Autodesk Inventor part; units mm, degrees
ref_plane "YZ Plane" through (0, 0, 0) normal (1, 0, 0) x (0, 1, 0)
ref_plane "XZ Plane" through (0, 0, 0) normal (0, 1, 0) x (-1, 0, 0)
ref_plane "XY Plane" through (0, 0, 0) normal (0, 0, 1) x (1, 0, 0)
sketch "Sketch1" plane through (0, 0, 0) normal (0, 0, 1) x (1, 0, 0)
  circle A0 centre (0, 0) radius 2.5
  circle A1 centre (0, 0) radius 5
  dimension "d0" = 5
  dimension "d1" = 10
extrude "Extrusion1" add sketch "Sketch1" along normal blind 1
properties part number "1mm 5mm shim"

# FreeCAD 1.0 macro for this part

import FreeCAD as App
import Part
import Sketcher
from FreeCAD import Vector

doc = App.newDocument("Part")
params = doc.addObject("Spreadsheet::Sheet", "Params")
for row, (alias, value) in enumerate([
    ("sketch1_diameter", "10 mm"),
    ("sketch1_diameter2", "5 mm"),
    ("pad1_length", "1 mm"),
], start=1):
    params.set(f"A{row}", alias)
    params.set(f"B{row}", "=" + value)
    params.setAlias(f"B{row}", alias)

body = doc.addObject("PartDesign::Body", "Body")

# Sketch on XY plane
sketch1 = doc.addObject("Sketcher::SketchObject", "Sketch")
body.addObject(sketch1)
sketch1.AttachmentSupport = (doc.XY_Plane, [""])
sketch1.MapMode = "FlatFace"
sketch1.addGeometry(Part.Circle(Vector(0, 0, 0), Vector(0, 0, 1), 5), False)
sketch1.addGeometry(Part.Circle(Vector(0, 0, 0), Vector(0, 0, 1), 2.5), False)
sketch1.addConstraint(Sketcher.Constraint("Coincident", 0, 3, -1, 1))
sketch1.addConstraint(Sketcher.Constraint("Coincident", 1, 3, -1, 1))
sketch1.addConstraint(Sketcher.Constraint("Diameter", 0, 10.0))
sketch1.addConstraint(Sketcher.Constraint("Diameter", 1, 5.0))
sketch1.setExpression("Constraints[2]", "Params.sketch1_diameter")
sketch1.setExpression("Constraints[3]", "Params.sketch1_diameter2")
pad1 = doc.addObject("PartDesign::Pad", "Pad")
body.addObject(pad1)
pad1.Profile = sketch1
pad1.setExpression("Length", "Params.pad1_length")

doc.recompute()
